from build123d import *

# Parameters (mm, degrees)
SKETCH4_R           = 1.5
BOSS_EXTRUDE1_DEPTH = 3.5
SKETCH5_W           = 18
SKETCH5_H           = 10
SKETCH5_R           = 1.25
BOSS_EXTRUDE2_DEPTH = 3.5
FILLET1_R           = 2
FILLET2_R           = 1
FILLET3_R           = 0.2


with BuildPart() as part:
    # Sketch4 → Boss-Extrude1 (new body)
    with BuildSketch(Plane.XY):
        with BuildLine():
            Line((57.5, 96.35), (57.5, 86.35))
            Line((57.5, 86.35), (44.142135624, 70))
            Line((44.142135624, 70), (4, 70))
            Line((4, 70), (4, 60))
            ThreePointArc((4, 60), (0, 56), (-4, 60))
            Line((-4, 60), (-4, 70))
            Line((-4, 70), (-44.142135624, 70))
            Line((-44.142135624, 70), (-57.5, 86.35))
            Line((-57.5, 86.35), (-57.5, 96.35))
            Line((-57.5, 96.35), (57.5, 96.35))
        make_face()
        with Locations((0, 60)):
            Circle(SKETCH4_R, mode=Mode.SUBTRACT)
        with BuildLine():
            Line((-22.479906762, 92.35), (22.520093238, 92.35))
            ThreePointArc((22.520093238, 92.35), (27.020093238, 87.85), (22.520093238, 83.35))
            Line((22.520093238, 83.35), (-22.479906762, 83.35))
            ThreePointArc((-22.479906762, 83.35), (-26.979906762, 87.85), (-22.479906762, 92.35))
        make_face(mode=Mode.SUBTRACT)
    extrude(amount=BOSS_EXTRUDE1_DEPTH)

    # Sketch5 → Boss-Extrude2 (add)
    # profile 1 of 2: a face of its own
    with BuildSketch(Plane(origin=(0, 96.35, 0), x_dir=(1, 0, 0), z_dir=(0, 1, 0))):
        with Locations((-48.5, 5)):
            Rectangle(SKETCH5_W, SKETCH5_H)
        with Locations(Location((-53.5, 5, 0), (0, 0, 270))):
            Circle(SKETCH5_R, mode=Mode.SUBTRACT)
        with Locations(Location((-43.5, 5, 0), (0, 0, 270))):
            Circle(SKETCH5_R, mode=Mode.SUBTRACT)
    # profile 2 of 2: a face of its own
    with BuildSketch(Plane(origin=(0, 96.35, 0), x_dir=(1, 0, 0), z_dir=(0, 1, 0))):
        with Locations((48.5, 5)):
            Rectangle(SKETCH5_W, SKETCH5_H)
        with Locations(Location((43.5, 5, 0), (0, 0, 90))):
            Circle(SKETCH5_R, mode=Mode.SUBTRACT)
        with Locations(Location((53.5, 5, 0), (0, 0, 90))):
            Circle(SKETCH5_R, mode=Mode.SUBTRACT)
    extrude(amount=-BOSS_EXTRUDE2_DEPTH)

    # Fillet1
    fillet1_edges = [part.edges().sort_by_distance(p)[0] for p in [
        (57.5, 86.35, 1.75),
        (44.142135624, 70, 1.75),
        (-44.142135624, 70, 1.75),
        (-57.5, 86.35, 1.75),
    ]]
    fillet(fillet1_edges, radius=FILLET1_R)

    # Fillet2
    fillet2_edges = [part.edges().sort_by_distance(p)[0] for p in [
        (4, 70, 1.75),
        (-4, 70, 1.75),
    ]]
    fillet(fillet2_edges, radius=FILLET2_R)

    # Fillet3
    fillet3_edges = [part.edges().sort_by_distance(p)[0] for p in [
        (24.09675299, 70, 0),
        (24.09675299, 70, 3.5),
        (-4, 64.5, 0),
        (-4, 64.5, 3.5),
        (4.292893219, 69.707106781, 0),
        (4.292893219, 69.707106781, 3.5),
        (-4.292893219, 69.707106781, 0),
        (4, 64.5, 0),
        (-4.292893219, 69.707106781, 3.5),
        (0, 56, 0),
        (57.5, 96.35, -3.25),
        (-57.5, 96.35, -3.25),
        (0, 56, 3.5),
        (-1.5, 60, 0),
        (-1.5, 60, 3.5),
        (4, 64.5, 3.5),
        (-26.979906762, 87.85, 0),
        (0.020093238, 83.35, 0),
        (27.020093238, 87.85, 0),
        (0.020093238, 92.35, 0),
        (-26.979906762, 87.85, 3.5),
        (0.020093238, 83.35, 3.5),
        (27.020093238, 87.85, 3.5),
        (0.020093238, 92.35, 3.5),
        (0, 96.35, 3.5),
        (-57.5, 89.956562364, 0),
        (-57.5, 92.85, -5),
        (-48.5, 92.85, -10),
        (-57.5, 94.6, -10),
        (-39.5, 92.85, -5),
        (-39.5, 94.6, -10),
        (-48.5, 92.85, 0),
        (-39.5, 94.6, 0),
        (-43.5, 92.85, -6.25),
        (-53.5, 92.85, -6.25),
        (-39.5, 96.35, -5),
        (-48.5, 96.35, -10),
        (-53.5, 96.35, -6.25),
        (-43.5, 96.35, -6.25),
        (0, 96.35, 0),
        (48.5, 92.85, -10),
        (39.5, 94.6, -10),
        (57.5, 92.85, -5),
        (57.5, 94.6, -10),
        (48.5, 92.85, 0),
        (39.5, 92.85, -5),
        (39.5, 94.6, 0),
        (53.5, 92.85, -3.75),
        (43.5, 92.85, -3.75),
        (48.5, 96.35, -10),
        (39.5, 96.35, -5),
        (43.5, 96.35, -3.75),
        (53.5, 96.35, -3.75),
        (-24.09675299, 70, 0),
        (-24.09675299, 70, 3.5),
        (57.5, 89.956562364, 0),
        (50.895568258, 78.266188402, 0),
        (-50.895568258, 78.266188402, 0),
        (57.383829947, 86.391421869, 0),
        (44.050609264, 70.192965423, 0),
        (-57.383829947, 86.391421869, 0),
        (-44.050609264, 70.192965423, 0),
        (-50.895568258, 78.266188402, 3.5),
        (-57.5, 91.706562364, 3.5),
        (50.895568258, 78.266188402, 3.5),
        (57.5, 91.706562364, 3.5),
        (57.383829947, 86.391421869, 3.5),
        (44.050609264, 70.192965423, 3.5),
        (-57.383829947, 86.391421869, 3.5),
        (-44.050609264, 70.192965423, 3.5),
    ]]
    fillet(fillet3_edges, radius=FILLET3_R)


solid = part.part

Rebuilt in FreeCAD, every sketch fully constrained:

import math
import FreeCAD as App
import Part
import Sketcher

V = App.Vector
Q = App.Units.Quantity


def edges_at(feature, points):
    """Names of the edges that pass closest to the given points."""
    edges = feature.Shape.Edges
    near = lambda p: min(range(len(edges)), key=lambda i: edges[i].distToShape(Part.Vertex(*p))[0])
    return sorted({f"Edge{near(p) + 1}" for p in points})


def add_polygon(sketch, points):
    """Adds a closed chain of lines whose ends are joined by coincident constraints."""
    first, n = sketch.GeometryCount, len(points)
    for a, b in zip(points, points[1:] + points[:1]):
        sketch.addGeometry(Part.LineSegment(App.Vector(*a, 0), App.Vector(*b, 0)), False)
    for i in range(n):
        sketch.addConstraint(Sketcher.Constraint("Coincident", first + i, 2, first + (i + 1) % n, 1))

doc = App.newDocument("Part")
body = doc.addObject("PartDesign::Body", "Body")

# Sketch on XY plane
sketch1 = doc.addObject("Sketcher::SketchObject", "Sketch")
body.addObject(sketch1)
sketch1.AttachmentSupport = (doc.XY_Plane, [""])
sketch1.MapMode = "FlatFace"
sketch1.addGeometry(Part.LineSegment(V(57.5, 86.3, 0), V(57.5, 96.3, 0)), False)
sketch1.addGeometry(Part.LineSegment(V(57.5, 96.3, 0), V(-57.5, 96.3, 0)), False)
sketch1.addGeometry(Part.LineSegment(V(-57.5, 96.3, 0), V(-57.5, 86.3, 0)), False)
sketch1.addGeometry(Part.LineSegment(V(-57.5, 86.3, 0), V(-44.1, 70, 0)), False)
sketch1.addGeometry(Part.LineSegment(V(-44.1, 70, 0), V(-4, 70, 0)), False)
sketch1.addGeometry(Part.LineSegment(V(-4, 70, 0), V(-4, 60, 0)), False)
sketch1.addGeometry(Part.ArcOfCircle(Part.Circle(V(0, 60, 0), V(0, 0, 1), 4), math.radians(180), math.radians(360)), False)
sketch1.addGeometry(Part.LineSegment(V(4, 60, 0), V(4, 70, 0)), False)
sketch1.addGeometry(Part.LineSegment(V(4, 70, 0), V(44.1, 70, 0)), False)
sketch1.addGeometry(Part.LineSegment(V(44.1, 70, 0), V(57.5, 86.3, 0)), False)
sketch1.addGeometry(Part.Circle(V(0, 60, 0), V(0, 0, 1), 1.5), False)
sketch1.addGeometry(Part.LineSegment(V(-22.5, 92.3, 0), V(22.5, 92.3, 0)), False)
sketch1.addGeometry(Part.ArcOfCircle(Part.Circle(V(22.5, 87.8, 0), V(0, 0, 1), 4.5), math.radians(-90), math.radians(90)), False)
sketch1.addGeometry(Part.LineSegment(V(22.5, 83.3, 0), V(-22.5, 83.3, 0)), False)
sketch1.addGeometry(Part.ArcOfCircle(Part.Circle(V(-22.5, 87.8, 0), V(0, 0, 1), 4.5), math.radians(90), math.radians(270)), False)
sketch1.addConstraint(Sketcher.Constraint("Coincident", 0, 2, 1, 1))
sketch1.addConstraint(Sketcher.Constraint("Coincident", 1, 2, 2, 1))
sketch1.addConstraint(Sketcher.Constraint("Coincident", 2, 2, 3, 1))
sketch1.addConstraint(Sketcher.Constraint("Coincident", 3, 2, 4, 1))
sketch1.addConstraint(Sketcher.Constraint("Coincident", 4, 2, 5, 1))
sketch1.addConstraint(Sketcher.Constraint("Tangent", 5, 2, 6, 1))
sketch1.addConstraint(Sketcher.Constraint("Tangent", 6, 2, 7, 1))
sketch1.addConstraint(Sketcher.Constraint("Coincident", 7, 2, 8, 1))
sketch1.addConstraint(Sketcher.Constraint("Coincident", 8, 2, 9, 1))
sketch1.addConstraint(Sketcher.Constraint("Coincident", 9, 2, 0, 1))
sketch1.addConstraint(Sketcher.Constraint("Tangent", 11, 2, 12, 2))
sketch1.addConstraint(Sketcher.Constraint("Tangent", 12, 1, 13, 1))
sketch1.addConstraint(Sketcher.Constraint("Tangent", 13, 2, 14, 2))
sketch1.addConstraint(Sketcher.Constraint("Tangent", 14, 1, 11, 1))
sketch1.addConstraint(Sketcher.Constraint("Vertical", 0))
sketch1.addConstraint(Sketcher.Constraint("Horizontal", 1))
sketch1.addConstraint(Sketcher.Constraint("Vertical", 2))
sketch1.addConstraint(Sketcher.Constraint("Horizontal", 4))
sketch1.addConstraint(Sketcher.Constraint("Vertical", 5))
sketch1.addConstraint(Sketcher.Constraint("Vertical", 7))
sketch1.addConstraint(Sketcher.Constraint("Horizontal", 8))
sketch1.addConstraint(Sketcher.Constraint("Horizontal", 11))
sketch1.addConstraint(Sketcher.Constraint("Horizontal", 13))
sketch1.addConstraint(Sketcher.Constraint("Coincident", 10, 3, 6, 3))
sketch1.addConstraint(Sketcher.Constraint("Symmetric", 4, 2, 7, 2, -2))
sketch1.addConstraint(Sketcher.Constraint("Symmetric", 2, 2, 9, 2, -2))
sketch1.addConstraint(Sketcher.Constraint("Equal", 4, 8))
sketch1.addConstraint(Sketcher.Constraint("Equal", 2, 5))
sketch1.addConstraint(Sketcher.Constraint("Diameter", 10, Q("3 mm")))
sketch1.addConstraint(Sketcher.Constraint("Radius", 6, Q("4 mm")))
sketch1.addConstraint(Sketcher.Constraint("Radius", 12, Q("4.5 mm")))
sketch1.addConstraint(Sketcher.Constraint("DistanceX", 1, 2, 1, 1, Q("115 mm")))
sketch1.addConstraint(Sketcher.Constraint("DistanceX", 11, 1, 11, 2, Q("45 mm")))
sketch1.addConstraint(Sketcher.Constraint("DistanceY", 0, 1, 0, 2, Q("10 mm")))
sketch1.addConstraint(Sketcher.Constraint("DistanceY", -1, 1, 6, 3, Q("60 mm")))
sketch1.addConstraint(Sketcher.Constraint("DistanceY", 11, 2, 0, 2, Q("4 mm")))
sketch1.addConstraint(Sketcher.Constraint("DistanceY", -1, 1, 12, 3, Q("87.85 mm")))
sketch1.addConstraint(Sketcher.Constraint("Distance", 3, Q("21.112912 mm")))
sketch1.addConstraint(Sketcher.Constraint("DistanceX", 3, 2, 14, 3, Q("21.662229 mm")))
pad1 = doc.addObject("PartDesign::Pad", "Pad")
body.addObject(pad1)
pad1.Profile = sketch1
pad1.Length = 3.5

# Sketch on XZ plane
sketch2 = doc.addObject("Sketcher::SketchObject", "Sketch001")
body.addObject(sketch2)
sketch2.AttachmentSupport = (doc.XZ_Plane, [""])
sketch2.MapMode = "FlatFace"
sketch2.AttachmentOffset = App.Placement(V(0, 0, -96.35), App.Rotation())
add_polygon(sketch2, [(-57.5, -10), (-57.5, 0), (-39.5, 0), (-39.5, -10)])  # lines 0-3
sketch2.addGeometry(Part.Circle(V(-53.5, -5, 0), V(0, 0, 1), 1.2), False)  # 4
sketch2.addGeometry(Part.Circle(V(-43.5, -5, 0), V(0, 0, 1), 1.2), False)  # 5
add_polygon(sketch2, [(39.5, -10), (39.5, 0), (57.5, 0), (57.5, -10)])  # lines 6-9
sketch2.addGeometry(Part.Circle(V(43.5, -5, 0), V(0, 0, 1), 1.2), False)  # 10
sketch2.addGeometry(Part.Circle(V(53.5, -5, 0), V(0, 0, 1), 1.2), False)  # 11
sketch2.addConstraint(Sketcher.Constraint("Vertical", 0))
sketch2.addConstraint(Sketcher.Constraint("Horizontal", 1))
sketch2.addConstraint(Sketcher.Constraint("Vertical", 2))
sketch2.addConstraint(Sketcher.Constraint("Horizontal", 3))
sketch2.addConstraint(Sketcher.Constraint("Vertical", 6))
sketch2.addConstraint(Sketcher.Constraint("Horizontal", 7))
sketch2.addConstraint(Sketcher.Constraint("Vertical", 8))
sketch2.addConstraint(Sketcher.Constraint("Horizontal", 9))
sketch2.addConstraint(Sketcher.Constraint("Equal", 4, 5))
sketch2.addConstraint(Sketcher.Constraint("Equal", 5, 10))
sketch2.addConstraint(Sketcher.Constraint("Equal", 10, 11))
sketch2.addConstraint(Sketcher.Constraint("Symmetric", 1, 2, 6, 2, -1, 1))
sketch2.addConstraint(Sketcher.Constraint("Symmetric", 5, 3, 10, 3, -2))
sketch2.addConstraint(Sketcher.Constraint("Symmetric", 4, 3, 11, 3, -2))
sketch2.addConstraint(Sketcher.Constraint("Symmetric", 0, 2, 7, 2, -2))
sketch2.addConstraint(Sketcher.Constraint("Horizontal", 4, 3, 5, 3))
sketch2.addConstraint(Sketcher.Constraint("Horizontal", 3, 2, 8, 2))
sketch2.addConstraint(Sketcher.Constraint("Diameter", 4, Q("2.5 mm")))
sketch2.addConstraint(Sketcher.Constraint("DistanceX", 1, 1, 1, 2, Q("18 mm")))
sketch2.addConstraint(Sketcher.Constraint("DistanceY", 0, 1, 0, 2, Q("10 mm")))
sketch2.addConstraint(Sketcher.Constraint("DistanceY", 4, 3, -1, 1, Q("5 mm")))
sketch2.addConstraint(Sketcher.Constraint("DistanceX", 4, 3, 5, 3, Q("10 mm")))
sketch2.addConstraint(Sketcher.Constraint("DistanceX", 5, 3, 10, 3, Q("87 mm")))
sketch2.addConstraint(Sketcher.Constraint("DistanceX", 0, 2, 4, 3, Q("4 mm")))
pad2 = doc.addObject("PartDesign::Pad", "Pad001")
body.addObject(pad2)
pad2.Profile = sketch2
pad2.Length = 3.5
doc.recompute()

fillet = doc.addObject("PartDesign::Fillet", "Fillet")
body.addObject(fillet)
fillet.Base = (pad2, edges_at(pad2, [
    (57.5, 86.35, 1.75),
    (44.142, 70, 1.75),
    (-44.142, 70, 1.75),
    (-57.5, 86.35, 1.75),
]))
fillet.Radius = 2
doc.recompute()

fillet2 = doc.addObject("PartDesign::Fillet", "Fillet001")
body.addObject(fillet2)
fillet2.Base = (fillet, edges_at(fillet, [(4, 70, 1.75), (-4, 70, 1.75)]))
fillet2.Radius = 1
doc.recompute()

fillet3 = doc.addObject("PartDesign::Fillet", "Fillet002")
body.addObject(fillet3)
fillet3.Base = (fillet2, ["Edge1"])
fillet3.UseAllEdges = True
fillet3.Radius = 0.2

doc.recompute()
